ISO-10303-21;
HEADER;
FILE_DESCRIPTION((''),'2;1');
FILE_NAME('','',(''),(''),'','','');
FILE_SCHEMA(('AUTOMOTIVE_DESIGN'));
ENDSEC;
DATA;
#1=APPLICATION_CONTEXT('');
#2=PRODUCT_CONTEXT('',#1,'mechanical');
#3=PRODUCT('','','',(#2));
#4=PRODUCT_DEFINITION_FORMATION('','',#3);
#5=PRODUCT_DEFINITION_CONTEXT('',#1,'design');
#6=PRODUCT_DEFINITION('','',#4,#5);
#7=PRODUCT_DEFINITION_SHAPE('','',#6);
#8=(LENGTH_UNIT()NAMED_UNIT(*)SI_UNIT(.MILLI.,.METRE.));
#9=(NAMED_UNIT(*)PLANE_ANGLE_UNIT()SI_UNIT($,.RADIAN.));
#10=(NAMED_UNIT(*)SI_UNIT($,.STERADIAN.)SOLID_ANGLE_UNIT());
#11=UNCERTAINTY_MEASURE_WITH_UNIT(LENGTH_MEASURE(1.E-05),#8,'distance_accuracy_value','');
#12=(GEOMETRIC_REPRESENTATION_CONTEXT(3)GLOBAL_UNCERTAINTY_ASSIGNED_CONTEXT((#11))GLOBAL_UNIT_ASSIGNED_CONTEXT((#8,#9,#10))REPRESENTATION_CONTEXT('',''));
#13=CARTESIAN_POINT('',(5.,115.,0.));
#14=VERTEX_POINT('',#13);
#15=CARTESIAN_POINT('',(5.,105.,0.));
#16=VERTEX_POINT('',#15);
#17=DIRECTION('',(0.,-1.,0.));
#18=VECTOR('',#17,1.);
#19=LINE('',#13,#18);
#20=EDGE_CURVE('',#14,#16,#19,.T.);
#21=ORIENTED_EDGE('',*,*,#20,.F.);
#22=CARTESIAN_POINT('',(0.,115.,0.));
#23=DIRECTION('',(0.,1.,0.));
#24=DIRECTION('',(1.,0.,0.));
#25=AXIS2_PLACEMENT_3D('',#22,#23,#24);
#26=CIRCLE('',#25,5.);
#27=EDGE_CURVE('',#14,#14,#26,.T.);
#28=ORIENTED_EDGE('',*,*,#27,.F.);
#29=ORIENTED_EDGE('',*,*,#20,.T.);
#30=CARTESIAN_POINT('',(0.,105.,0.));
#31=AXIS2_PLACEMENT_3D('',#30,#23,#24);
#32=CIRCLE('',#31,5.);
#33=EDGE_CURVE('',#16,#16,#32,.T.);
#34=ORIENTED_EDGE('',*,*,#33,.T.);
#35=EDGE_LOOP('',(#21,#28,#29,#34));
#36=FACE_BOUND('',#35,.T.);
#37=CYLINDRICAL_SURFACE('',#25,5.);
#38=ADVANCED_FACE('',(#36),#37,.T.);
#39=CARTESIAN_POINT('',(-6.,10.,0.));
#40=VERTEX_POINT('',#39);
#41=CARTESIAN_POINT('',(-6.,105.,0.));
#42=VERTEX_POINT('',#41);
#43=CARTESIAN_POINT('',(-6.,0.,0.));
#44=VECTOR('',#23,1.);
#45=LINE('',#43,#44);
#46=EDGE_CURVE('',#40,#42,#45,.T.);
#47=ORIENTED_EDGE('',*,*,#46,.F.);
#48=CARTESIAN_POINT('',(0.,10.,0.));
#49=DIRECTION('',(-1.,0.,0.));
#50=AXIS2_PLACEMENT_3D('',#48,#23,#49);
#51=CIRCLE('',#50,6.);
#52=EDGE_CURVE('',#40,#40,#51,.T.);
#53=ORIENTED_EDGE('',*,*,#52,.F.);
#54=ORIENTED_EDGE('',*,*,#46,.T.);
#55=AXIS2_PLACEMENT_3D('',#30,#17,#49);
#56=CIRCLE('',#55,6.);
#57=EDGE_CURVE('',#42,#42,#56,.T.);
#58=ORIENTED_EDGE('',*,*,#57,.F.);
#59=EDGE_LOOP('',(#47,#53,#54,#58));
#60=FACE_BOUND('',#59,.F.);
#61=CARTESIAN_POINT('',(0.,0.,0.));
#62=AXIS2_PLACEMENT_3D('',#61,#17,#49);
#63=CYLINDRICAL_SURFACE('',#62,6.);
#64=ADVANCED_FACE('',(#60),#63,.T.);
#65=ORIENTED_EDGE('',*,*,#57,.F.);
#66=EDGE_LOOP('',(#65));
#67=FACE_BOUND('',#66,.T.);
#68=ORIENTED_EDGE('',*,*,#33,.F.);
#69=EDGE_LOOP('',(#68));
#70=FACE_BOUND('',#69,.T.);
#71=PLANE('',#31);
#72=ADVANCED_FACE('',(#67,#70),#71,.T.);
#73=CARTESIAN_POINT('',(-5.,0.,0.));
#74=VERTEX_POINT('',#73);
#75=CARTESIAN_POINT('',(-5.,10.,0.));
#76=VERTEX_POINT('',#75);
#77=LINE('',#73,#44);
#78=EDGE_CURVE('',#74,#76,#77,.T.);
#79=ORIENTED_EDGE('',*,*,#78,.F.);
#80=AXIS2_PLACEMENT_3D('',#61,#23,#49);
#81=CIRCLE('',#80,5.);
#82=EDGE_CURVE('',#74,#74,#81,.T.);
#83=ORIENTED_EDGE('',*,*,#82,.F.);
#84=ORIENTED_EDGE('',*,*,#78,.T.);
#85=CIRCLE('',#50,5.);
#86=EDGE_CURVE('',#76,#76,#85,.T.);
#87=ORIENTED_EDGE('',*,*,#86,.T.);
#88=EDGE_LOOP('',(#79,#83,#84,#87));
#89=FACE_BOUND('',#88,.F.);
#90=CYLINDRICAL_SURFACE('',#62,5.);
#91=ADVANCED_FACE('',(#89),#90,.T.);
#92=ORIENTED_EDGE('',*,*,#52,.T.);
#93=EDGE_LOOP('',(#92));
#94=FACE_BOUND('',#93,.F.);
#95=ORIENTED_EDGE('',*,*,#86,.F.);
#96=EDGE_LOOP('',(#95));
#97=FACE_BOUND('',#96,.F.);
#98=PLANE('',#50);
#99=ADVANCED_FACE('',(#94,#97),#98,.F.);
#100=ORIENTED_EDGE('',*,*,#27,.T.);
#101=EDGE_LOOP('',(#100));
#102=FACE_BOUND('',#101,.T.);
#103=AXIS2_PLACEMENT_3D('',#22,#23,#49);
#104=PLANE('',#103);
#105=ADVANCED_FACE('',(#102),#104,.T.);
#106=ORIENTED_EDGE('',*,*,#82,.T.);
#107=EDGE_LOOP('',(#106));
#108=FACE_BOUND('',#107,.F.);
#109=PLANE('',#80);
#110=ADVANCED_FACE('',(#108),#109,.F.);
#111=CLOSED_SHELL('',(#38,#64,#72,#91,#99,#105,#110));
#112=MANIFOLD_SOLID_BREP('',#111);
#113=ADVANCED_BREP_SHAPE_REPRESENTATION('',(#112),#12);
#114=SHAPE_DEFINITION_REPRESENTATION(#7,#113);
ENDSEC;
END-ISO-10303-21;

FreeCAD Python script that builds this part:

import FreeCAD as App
import Part
import Sketcher
from FreeCAD import Vector

doc = App.newDocument("Part")
params = doc.addObject("Spreadsheet::Sheet", "Params")
for row, (alias, value) in enumerate([
    ("sketch1_diameter", "12 mm"),
    ("pad1_length", "115 mm"),
    ("sketch2_diameter", "12 mm"),
    ("sketch2_diameter2", "10 mm"),
    ("pocket1_length", "10 mm"),
    ("sketch3_diameter", "10 mm"),
    ("sketch3_diameter2", "12 mm"),
    ("pocket2_length", "10 mm"),
], start=1):
    params.set(f"A{row}", alias)
    params.set(f"B{row}", "=" + value)
    params.setAlias(f"B{row}", alias)

body = doc.addObject("PartDesign::Body", "Body")

# Sketch on XZ plane
sketch1 = body.newObject("Sketcher::SketchObject", "Sketch")
sketch1.AttachmentSupport = (doc.getObject("XZ_Plane"), [""])
sketch1.MapMode = "FlatFace"
sketch1.addGeometry(Part.Circle(Vector(0, 0, 0), Vector(0, 0, 1), 6), False)
sketch1.addConstraint([
    Sketcher.Constraint("Coincident", 0, 3, -1, 1),
    Sketcher.Constraint("Diameter", 0, 12.0),
])
sketch1.setExpression("Constraints[1]", "Params.sketch1_diameter")
pad1 = body.newObject("PartDesign::Pad", "Pad")
pad1.Profile = sketch1
pad1.setExpression("Length", "Params.pad1_length")
pad1.Reversed = True

# Sketch on XZ plane
sketch2 = body.newObject("Sketcher::SketchObject", "Sketch001")
sketch2.AttachmentSupport = (doc.getObject("XZ_Plane"), [""])
sketch2.MapMode = "FlatFace"
sketch2.addGeometry([
    Part.Circle(Vector(0, 0, 0), Vector(0, 0, 1), 6),
    Part.Circle(Vector(0, 0, 0), Vector(0, 0, 1), 5),
], False)
sketch2.addConstraint([
    Sketcher.Constraint("Coincident", 0, 3, -1, 1),
    Sketcher.Constraint("Coincident", 1, 3, -1, 1),
    Sketcher.Constraint("Diameter", 0, 12.0),
    Sketcher.Constraint("Diameter", 1, 10.0),
])
sketch2.setExpression("Constraints[2]", "Params.sketch2_diameter")
sketch2.setExpression("Constraints[3]", "Params.sketch2_diameter2")
pocket1 = body.newObject("PartDesign::Pocket", "Pocket")
pocket1.Profile = sketch2
pocket1.setExpression("Length", "Params.pocket1_length")

# Sketch on XZ plane
sketch3 = body.newObject("Sketcher::SketchObject", "Sketch002")
sketch3.AttachmentSupport = (doc.getObject("XZ_Plane"), [""])
sketch3.MapMode = "FlatFace"
sketch3.AttachmentOffset = App.Placement(Vector(0, 0, -115), App.Rotation())
sketch3.addGeometry([
    Part.Circle(Vector(0, 0, 0), Vector(0, 0, 1), 6),
    Part.Circle(Vector(0, 0, 0), Vector(0, 0, 1), 5),
], False)
sketch3.addConstraint([
    Sketcher.Constraint("Coincident", 0, 3, -1, 1),
    Sketcher.Constraint("Coincident", 1, 3, -1, 1),
    Sketcher.Constraint("Diameter", 1, 10.0),
    Sketcher.Constraint("Diameter", 0, 12.0),
])
sketch3.setExpression("Constraints[2]", "Params.sketch3_diameter")
sketch3.setExpression("Constraints[3]", "Params.sketch3_diameter2")
pocket2 = body.newObject("PartDesign::Pocket", "Pocket001")
pocket2.Profile = sketch3
pocket2.setExpression("Length", "Params.pocket2_length")
pocket2.Reversed = True

doc.recompute()
